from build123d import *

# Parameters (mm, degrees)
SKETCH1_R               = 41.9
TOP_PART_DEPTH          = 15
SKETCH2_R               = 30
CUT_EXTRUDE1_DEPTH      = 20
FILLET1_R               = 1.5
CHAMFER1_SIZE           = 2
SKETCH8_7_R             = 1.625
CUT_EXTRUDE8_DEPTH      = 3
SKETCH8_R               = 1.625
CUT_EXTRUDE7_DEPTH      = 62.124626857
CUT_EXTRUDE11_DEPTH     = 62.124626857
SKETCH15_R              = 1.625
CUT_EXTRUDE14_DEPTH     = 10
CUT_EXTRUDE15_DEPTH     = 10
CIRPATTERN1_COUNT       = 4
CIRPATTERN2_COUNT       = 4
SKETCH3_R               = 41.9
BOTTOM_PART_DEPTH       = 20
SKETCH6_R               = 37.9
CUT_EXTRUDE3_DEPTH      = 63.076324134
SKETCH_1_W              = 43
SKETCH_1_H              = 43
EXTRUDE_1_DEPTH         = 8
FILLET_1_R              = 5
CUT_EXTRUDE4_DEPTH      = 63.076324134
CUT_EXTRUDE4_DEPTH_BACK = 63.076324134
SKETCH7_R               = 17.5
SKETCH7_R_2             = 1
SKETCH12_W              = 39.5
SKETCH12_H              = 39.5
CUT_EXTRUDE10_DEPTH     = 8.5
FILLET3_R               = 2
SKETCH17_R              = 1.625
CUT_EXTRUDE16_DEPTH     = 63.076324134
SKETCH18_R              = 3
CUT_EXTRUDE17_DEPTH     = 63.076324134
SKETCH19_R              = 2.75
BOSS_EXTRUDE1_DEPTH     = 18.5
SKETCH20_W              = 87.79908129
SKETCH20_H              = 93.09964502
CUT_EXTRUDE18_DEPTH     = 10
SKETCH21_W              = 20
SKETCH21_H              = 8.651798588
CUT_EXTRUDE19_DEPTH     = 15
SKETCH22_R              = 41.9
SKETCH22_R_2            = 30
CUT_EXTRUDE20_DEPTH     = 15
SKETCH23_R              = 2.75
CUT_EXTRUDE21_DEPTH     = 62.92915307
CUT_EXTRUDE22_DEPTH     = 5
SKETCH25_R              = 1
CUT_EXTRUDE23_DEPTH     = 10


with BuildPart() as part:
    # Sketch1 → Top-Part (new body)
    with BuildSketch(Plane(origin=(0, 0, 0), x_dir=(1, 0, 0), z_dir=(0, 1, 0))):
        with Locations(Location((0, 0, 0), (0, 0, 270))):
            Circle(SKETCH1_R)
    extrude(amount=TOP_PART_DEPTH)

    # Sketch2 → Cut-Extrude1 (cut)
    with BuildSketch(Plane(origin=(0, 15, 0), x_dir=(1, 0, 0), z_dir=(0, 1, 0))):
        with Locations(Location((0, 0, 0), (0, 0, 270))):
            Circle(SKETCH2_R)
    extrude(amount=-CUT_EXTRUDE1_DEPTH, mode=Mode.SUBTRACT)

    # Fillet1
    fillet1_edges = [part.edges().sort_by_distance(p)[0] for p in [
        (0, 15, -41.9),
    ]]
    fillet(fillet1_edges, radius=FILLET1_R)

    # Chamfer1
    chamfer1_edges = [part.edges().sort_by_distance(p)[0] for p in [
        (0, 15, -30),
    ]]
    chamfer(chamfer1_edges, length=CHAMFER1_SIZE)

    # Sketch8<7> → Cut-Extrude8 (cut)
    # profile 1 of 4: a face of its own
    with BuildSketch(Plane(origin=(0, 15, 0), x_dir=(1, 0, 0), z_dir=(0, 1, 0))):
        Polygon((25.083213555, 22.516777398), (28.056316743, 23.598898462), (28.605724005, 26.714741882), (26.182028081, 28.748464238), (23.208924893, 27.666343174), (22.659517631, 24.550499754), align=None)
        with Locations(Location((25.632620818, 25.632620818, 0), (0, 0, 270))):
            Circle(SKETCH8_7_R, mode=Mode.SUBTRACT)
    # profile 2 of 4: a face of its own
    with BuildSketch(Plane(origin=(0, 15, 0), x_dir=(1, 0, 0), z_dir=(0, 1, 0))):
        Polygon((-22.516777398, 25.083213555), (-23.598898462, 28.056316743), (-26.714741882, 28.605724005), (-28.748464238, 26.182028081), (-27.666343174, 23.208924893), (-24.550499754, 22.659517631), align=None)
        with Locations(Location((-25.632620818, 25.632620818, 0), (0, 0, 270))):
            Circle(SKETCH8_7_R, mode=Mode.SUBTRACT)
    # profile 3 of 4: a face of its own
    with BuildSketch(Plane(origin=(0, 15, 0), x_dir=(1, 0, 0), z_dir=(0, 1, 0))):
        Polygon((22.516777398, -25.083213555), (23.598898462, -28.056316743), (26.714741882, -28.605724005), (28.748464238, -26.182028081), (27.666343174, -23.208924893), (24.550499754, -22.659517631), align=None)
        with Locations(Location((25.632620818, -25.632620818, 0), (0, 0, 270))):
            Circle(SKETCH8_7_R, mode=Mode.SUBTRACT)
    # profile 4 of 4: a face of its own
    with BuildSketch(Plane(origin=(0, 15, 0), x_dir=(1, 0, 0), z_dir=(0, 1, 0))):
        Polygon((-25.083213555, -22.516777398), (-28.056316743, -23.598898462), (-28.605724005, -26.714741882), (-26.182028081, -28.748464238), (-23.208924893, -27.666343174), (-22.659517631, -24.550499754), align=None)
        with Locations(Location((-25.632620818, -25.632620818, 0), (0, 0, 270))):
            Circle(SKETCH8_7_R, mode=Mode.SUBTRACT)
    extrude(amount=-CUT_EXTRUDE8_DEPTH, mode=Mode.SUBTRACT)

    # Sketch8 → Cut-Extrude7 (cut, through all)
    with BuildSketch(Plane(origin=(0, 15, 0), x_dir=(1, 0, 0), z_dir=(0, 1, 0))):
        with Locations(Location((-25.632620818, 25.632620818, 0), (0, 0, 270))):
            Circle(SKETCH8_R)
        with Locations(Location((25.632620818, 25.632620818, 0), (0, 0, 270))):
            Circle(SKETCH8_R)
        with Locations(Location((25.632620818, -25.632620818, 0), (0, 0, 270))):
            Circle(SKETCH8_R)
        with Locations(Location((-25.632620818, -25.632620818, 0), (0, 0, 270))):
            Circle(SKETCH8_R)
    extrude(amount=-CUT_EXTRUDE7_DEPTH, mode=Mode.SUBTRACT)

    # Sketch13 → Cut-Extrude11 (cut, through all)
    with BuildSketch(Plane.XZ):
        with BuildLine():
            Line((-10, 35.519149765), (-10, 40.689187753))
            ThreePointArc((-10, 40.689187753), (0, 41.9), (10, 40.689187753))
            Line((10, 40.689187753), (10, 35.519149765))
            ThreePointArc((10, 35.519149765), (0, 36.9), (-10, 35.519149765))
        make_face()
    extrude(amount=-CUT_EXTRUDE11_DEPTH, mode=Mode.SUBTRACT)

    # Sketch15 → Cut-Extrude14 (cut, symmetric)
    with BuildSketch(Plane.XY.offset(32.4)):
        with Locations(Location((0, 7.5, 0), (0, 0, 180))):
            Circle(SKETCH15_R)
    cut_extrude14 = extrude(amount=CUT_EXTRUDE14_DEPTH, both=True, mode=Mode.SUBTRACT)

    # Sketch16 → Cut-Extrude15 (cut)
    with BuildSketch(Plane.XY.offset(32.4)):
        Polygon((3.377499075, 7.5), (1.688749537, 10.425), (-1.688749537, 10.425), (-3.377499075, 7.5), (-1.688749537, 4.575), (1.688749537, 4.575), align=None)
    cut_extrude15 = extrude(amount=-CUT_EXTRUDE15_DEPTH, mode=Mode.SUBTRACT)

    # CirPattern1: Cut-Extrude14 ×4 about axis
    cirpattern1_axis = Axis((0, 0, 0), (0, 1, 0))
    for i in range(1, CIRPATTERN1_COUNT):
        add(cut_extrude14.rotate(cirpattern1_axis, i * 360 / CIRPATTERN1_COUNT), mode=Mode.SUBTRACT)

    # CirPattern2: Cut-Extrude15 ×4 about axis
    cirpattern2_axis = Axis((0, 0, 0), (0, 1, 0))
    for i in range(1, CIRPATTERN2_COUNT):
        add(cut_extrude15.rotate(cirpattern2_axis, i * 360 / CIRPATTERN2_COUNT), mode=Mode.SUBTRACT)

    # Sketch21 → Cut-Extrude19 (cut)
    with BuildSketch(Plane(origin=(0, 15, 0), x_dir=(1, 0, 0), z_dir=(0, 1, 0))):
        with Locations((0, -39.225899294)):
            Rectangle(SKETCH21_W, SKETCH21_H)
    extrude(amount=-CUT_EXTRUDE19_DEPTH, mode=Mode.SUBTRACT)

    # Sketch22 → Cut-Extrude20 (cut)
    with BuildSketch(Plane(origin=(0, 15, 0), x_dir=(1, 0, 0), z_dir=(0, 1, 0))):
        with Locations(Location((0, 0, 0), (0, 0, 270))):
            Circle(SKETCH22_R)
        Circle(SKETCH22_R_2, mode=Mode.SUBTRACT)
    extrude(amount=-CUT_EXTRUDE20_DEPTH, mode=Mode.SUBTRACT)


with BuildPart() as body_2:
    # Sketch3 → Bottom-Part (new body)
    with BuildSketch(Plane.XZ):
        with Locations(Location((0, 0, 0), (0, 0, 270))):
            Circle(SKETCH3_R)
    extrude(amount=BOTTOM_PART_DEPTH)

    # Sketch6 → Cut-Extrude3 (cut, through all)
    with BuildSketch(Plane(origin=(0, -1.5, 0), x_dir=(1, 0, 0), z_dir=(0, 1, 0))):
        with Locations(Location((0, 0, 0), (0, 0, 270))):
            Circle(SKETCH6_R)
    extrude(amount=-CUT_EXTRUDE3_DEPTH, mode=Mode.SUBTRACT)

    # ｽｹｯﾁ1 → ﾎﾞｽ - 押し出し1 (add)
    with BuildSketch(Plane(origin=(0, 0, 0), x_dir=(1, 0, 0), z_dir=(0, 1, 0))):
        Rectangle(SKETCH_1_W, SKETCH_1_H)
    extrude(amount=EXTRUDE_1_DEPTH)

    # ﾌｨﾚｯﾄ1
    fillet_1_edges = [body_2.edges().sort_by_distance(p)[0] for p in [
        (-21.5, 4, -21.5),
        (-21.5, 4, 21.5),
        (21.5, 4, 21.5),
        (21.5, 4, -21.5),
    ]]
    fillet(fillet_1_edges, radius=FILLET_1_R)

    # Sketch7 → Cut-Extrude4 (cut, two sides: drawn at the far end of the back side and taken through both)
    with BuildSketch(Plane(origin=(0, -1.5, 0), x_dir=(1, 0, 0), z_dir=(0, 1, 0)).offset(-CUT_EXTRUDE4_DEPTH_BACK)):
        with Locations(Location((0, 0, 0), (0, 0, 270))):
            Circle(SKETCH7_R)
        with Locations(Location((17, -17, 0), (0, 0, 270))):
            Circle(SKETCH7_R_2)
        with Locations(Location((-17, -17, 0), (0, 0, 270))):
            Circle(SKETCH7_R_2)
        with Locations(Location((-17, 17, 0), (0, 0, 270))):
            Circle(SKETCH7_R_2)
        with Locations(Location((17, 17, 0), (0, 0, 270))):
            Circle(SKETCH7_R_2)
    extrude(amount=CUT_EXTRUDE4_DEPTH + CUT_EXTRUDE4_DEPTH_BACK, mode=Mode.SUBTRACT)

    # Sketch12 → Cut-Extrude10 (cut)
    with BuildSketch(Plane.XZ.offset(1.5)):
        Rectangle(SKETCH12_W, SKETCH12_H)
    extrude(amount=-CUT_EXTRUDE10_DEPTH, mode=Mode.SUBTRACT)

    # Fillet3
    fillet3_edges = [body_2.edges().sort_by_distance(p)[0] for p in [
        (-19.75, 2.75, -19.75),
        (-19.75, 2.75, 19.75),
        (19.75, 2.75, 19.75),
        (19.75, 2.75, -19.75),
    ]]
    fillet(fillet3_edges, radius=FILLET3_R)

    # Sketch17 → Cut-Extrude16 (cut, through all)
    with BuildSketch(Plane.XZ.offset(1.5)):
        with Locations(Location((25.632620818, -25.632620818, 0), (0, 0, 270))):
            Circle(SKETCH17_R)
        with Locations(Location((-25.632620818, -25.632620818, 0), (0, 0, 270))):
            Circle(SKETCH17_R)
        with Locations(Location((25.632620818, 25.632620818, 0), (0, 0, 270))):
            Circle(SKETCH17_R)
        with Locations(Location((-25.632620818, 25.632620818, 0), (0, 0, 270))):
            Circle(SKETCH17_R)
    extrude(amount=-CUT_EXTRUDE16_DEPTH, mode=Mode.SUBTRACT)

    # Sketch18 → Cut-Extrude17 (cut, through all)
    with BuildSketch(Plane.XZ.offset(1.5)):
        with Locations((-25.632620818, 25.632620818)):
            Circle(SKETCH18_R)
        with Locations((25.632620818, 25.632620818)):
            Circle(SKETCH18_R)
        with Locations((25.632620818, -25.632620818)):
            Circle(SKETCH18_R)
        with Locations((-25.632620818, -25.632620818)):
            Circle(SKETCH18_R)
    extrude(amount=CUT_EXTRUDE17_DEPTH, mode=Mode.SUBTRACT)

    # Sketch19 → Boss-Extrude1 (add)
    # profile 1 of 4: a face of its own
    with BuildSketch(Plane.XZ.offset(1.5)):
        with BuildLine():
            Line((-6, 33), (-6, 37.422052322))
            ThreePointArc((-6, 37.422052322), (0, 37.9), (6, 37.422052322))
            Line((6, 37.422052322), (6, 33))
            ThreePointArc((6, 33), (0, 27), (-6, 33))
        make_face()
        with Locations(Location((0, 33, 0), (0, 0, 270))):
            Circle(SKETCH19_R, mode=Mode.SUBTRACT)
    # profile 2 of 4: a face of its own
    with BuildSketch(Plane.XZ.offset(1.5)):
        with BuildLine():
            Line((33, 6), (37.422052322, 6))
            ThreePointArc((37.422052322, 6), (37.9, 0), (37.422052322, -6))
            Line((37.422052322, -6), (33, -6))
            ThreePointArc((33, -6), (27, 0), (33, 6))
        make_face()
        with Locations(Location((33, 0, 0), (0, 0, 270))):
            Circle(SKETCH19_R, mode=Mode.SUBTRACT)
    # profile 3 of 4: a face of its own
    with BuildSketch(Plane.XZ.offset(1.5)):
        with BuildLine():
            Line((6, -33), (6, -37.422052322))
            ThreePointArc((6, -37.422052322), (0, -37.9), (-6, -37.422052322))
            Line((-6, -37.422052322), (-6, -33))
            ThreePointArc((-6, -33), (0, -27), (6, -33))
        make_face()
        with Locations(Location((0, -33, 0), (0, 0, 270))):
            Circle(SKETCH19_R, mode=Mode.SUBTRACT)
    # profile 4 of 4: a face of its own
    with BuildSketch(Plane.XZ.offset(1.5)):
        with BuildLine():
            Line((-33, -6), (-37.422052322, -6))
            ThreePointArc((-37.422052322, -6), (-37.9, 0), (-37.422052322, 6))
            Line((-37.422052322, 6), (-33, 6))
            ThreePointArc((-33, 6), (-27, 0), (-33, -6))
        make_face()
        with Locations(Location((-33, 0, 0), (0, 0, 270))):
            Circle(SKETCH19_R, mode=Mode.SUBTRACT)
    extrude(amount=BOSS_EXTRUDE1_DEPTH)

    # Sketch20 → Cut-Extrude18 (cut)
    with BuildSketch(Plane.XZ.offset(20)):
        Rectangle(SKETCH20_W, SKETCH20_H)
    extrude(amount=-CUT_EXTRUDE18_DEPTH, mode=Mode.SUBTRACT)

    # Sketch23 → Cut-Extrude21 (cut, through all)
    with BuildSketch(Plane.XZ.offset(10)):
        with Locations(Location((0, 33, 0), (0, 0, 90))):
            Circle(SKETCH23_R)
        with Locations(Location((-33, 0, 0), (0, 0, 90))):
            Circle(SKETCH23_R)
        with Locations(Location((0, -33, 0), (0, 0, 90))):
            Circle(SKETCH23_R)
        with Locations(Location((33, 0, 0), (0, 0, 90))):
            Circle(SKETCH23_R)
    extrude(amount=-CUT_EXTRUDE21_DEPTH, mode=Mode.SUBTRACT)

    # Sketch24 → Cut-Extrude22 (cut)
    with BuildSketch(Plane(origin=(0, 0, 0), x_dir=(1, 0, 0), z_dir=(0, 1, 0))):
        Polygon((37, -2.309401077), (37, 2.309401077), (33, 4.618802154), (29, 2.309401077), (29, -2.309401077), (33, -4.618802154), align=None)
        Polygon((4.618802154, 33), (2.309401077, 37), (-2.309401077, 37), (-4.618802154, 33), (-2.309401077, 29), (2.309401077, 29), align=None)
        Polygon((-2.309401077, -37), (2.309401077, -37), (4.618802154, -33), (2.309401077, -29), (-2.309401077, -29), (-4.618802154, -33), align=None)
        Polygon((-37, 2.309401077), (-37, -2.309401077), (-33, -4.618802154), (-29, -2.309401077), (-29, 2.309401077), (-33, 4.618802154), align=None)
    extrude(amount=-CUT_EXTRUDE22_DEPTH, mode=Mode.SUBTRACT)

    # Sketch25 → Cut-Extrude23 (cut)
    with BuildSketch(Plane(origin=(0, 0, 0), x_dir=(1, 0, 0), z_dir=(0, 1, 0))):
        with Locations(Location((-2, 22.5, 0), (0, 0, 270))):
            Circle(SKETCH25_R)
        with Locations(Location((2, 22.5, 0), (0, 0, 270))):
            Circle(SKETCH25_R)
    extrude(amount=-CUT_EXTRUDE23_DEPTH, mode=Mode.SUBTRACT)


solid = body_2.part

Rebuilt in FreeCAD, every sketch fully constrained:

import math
import FreeCAD as App
import Part
import Sketcher
from FreeCAD import Vector
Q = App.Units.Quantity


def edges_at(feature, points):
    """Names of the edges that pass closest to the given points."""
    edges = feature.Shape.Edges
    near = lambda p: min(range(len(edges)), key=lambda i: edges[i].distToShape(Part.Vertex(*p))[0])
    return sorted({f"Edge{near(p) + 1}" for p in points})


def add_polygon(sketch, points):
    """Adds a closed chain of lines whose ends are joined by coincident constraints."""
    first, n = sketch.GeometryCount, len(points)
    for a, b in zip(points, points[1:] + points[:1]):
        sketch.addGeometry(Part.LineSegment(App.Vector(*a, 0), App.Vector(*b, 0)), False)
    for i in range(n):
        sketch.addConstraint(Sketcher.Constraint("Coincident", first + i, 2, first + (i + 1) % n, 1))

doc = App.newDocument("Part")
body = doc.addObject("PartDesign::Body", "Body")

# Sketch on XZ plane
sketch1 = body.newObject("Sketcher::SketchObject", "Sketch")
sketch1.AttachmentSupport = (doc.getObject("XZ_Plane"), [""])
sketch1.MapMode = "FlatFace"
sketch1.addGeometry(Part.Circle(Vector(0, 0, 0), Vector(0, 0, 1), 41.9), False)
sketch1.addConstraint(Sketcher.Constraint("Coincident", 0, 3, -1, 1))
sketch1.addConstraint(Sketcher.Constraint("Diameter", 0, 83.8))
pad1 = body.newObject("PartDesign::Pad", "Pad")
pad1.Profile = sketch1
pad1.Length = 15
pad1.Reversed = True

# Sketch on XZ plane
sketch2 = body.newObject("Sketcher::SketchObject", "Sketch001")
sketch2.AttachmentSupport = (doc.getObject("XZ_Plane"), [""])
sketch2.MapMode = "FlatFace"
sketch2.AttachmentOffset = App.Placement(Vector(0, 0, -15), App.Rotation())
sketch2.addGeometry(Part.Circle(Vector(0, 0, 0), Vector(0, 0, 1), 30), False)
sketch2.addConstraint(Sketcher.Constraint("Coincident", 0, 3, -1, 1))
sketch2.addConstraint(Sketcher.Constraint("Diameter", 0, 60.0))
pocket1 = body.newObject("PartDesign::Pocket", "Pocket")
pocket1.Profile = sketch2
pocket1.Length = 20
pocket1.Reversed = True
doc.recompute()

fillet = body.newObject("PartDesign::Fillet", "Fillet")
fillet.Base = (pocket1, edges_at(pocket1, [(0, 15, -41.9)]))
fillet.Radius = 1.5
doc.recompute()

chamfer = body.newObject("PartDesign::Chamfer", "Chamfer")
chamfer.Base = (fillet, edges_at(fillet, [(0, 15, -30)]))
chamfer.Size = 2

# Sketch on XZ plane
sketch3 = body.newObject("Sketcher::SketchObject", "Sketch002")
sketch3.AttachmentSupport = (doc.getObject("XZ_Plane"), [""])
sketch3.MapMode = "FlatFace"
sketch3.AttachmentOffset = App.Placement(Vector(0, 0, -15), App.Rotation())
add_polygon(sketch3, [(25.083214, -22.516777), (28.056317, -23.598898), (28.605724, -26.714742), (26.182028, -28.748464), (23.208925, -27.666343), (22.659518, -24.5505)])  # lines 0-5
sketch3.addGeometry(Part.Circle(Vector(25.632621, -25.632621, 0), Vector(0, 0, 1), 1.625), False)  # 6
add_polygon(sketch3, [(-22.516777, -25.083214), (-23.598898, -28.056317), (-26.714742, -28.605724), (-28.748464, -26.182028), (-27.666343, -23.208925), (-24.5505, -22.659518)])  # lines 7-12
sketch3.addGeometry(Part.Circle(Vector(-25.632621, -25.632621, 0), Vector(0, 0, 1), 1.625), False)  # 13
add_polygon(sketch3, [(22.516777, 25.083214), (23.598898, 28.056317), (26.714742, 28.605724), (28.748464, 26.182028), (27.666343, 23.208925), (24.5505, 22.659518)])  # lines 14-19
sketch3.addGeometry(Part.Circle(Vector(25.632621, 25.632621, 0), Vector(0, 0, 1), 1.625), False)  # 20
add_polygon(sketch3, [(-25.083214, 22.516777), (-28.056317, 23.598898), (-28.605724, 26.714742), (-26.182028, 28.748464), (-23.208925, 27.666343), (-22.659518, 24.5505)])  # lines 21-26
sketch3.addGeometry(Part.Circle(Vector(-25.632621, 25.632621, 0), Vector(0, 0, 1), 1.625), False)  # 27
sketch3.addConstraint(Sketcher.Constraint("Equal", 6, 13))
sketch3.addConstraint(Sketcher.Constraint("Equal", 13, 20))
sketch3.addConstraint(Sketcher.Constraint("Equal", 20, 27))
sketch3.addConstraint(Sketcher.Constraint("Symmetric", 13, 3, 20, 3, -1, 1))
sketch3.addConstraint(Sketcher.Constraint("Symmetric", 6, 3, 27, 3, -1, 1))
sketch3.addConstraint(Sketcher.Constraint("Symmetric", 7, 2, 14, 2, -1, 1))
sketch3.addConstraint(Sketcher.Constraint("Symmetric", 8, 2, 15, 2, -1, 1))
sketch3.addConstraint(Sketcher.Constraint("Symmetric", 9, 2, 16, 2, -1, 1))
sketch3.addConstraint(Sketcher.Constraint("Symmetric", 10, 2, 17, 2, -1, 1))
sketch3.addConstraint(Sketcher.Constraint("Symmetric", 11, 2, 18, 2, -1, 1))
sketch3.addConstraint(Sketcher.Constraint("Symmetric", 12, 2, 19, 2, -1, 1))
sketch3.addConstraint(Sketcher.Constraint("Symmetric", 0, 2, 21, 2, -1, 1))
sketch3.addConstraint(Sketcher.Constraint("Symmetric", 1, 2, 22, 2, -1, 1))
sketch3.addConstraint(Sketcher.Constraint("Symmetric", 2, 2, 23, 2, -1, 1))
sketch3.addConstraint(Sketcher.Constraint("Symmetric", 3, 2, 24, 2, -1, 1))
sketch3.addConstraint(Sketcher.Constraint("Symmetric", 4, 2, 25, 2, -1, 1))
sketch3.addConstraint(Sketcher.Constraint("Symmetric", 5, 2, 26, 2, -1, 1))
sketch3.addConstraint(Sketcher.Constraint("Symmetric", 6, 3, 13, 3, -2))
sketch3.addConstraint(Sketcher.Constraint("Parallel", 0, 3))
sketch3.addConstraint(Sketcher.Constraint("Parallel", 1, 4))
sketch3.addConstraint(Sketcher.Constraint("Parallel", 2, 5))
sketch3.addConstraint(Sketcher.Constraint("Perpendicular", 3, 7))
sketch3.addConstraint(Sketcher.Constraint("Perpendicular", 4, 8))
sketch3.addConstraint(Sketcher.Constraint("Perpendicular", 5, 9))
sketch3.addConstraint(Sketcher.Constraint("Parallel", 7, 10))
sketch3.addConstraint(Sketcher.Constraint("Parallel", 8, 11))
sketch3.addConstraint(Sketcher.Constraint("Parallel", 9, 12))
sketch3.addConstraint(Sketcher.Constraint("Equal", 0, 1))
sketch3.addConstraint(Sketcher.Constraint("Equal", 1, 2))
sketch3.addConstraint(Sketcher.Constraint("Equal", 2, 3))
sketch3.addConstraint(Sketcher.Constraint("Equal", 5, 7))
sketch3.addConstraint(Sketcher.Constraint("Equal", 7, 8))
sketch3.addConstraint(Sketcher.Constraint("Equal", 8, 9))
sketch3.addConstraint(Sketcher.Constraint("Equal", 9, 10))
sketch3.addConstraint(Sketcher.Constraint("Diameter", 6, 3.25))
sketch3.addConstraint(Sketcher.Constraint("Angle", 0, Q("-20 deg")))
sketch3.addConstraint(Sketcher.Constraint("Angle", 1, Q("-80 deg")))
sketch3.addConstraint(Sketcher.Constraint("Angle", 2, Q("-140 deg")))
sketch3.addConstraint(Sketcher.Constraint("DistanceY", 0, 2, -1, 1, 23.598898))
sketch3.addConstraint(Sketcher.Constraint("DistanceY", 4, 2, -1, 1, 24.5505))
sketch3.addConstraint(Sketcher.Constraint("DistanceX", 7, 2, -1, 1, 23.598898))
sketch3.addConstraint(Sketcher.Constraint("DistanceY", 5, 2, 15, 2, 51.122501))
sketch3.addConstraint(Sketcher.Constraint("DistanceX", 22, 2, 19, 2, 51.122501))
sketch3.addConstraint(Sketcher.Constraint("DistanceX", -1, 1, 6, 3, 25.632621))
sketch3.addConstraint(Sketcher.Constraint("DistanceY", 6, 3, -1, 1, 25.632621))
pocket2 = body.newObject("PartDesign::Pocket", "Pocket001")
pocket2.Profile = sketch3
pocket2.Length = 3
pocket2.Reversed = True

# Sketch on XZ plane
sketch4 = body.newObject("Sketcher::SketchObject", "Sketch003")
sketch4.AttachmentSupport = (doc.getObject("XZ_Plane"), [""])
sketch4.MapMode = "FlatFace"
sketch4.AttachmentOffset = App.Placement(Vector(0, 0, -15), App.Rotation())
sketch4.addGeometry(Part.Circle(Vector(-25.632621, -25.632621, 0), Vector(0, 0, 1), 1.625), False)
sketch4.addGeometry(Part.Circle(Vector(25.632621, -25.632621, 0), Vector(0, 0, 1), 1.625), False)
sketch4.addGeometry(Part.Circle(Vector(25.632621, 25.632621, 0), Vector(0, 0, 1), 1.625), False)
sketch4.addGeometry(Part.Circle(Vector(-25.632621, 25.632621, 0), Vector(0, 0, 1), 1.625), False)
sketch4.addConstraint(Sketcher.Constraint("Equal", 0, 1))
sketch4.addConstraint(Sketcher.Constraint("Equal", 1, 2))
sketch4.addConstraint(Sketcher.Constraint("Equal", 2, 3))
sketch4.addConstraint(Sketcher.Constraint("Symmetric", 0, 3, 2, 3, -1, 1))
sketch4.addConstraint(Sketcher.Constraint("Symmetric", 1, 3, 3, 3, -1, 1))
sketch4.addConstraint(Sketcher.Constraint("Symmetric", 0, 3, 1, 3, -2))
sketch4.addConstraint(Sketcher.Constraint("Diameter", 0, 3.25))
sketch4.addConstraint(Sketcher.Constraint("DistanceX", 0, 3, -1, 1, 25.632621))
sketch4.addConstraint(Sketcher.Constraint("DistanceY", 0, 3, -1, 1, 25.632621))
pocket3 = body.newObject("PartDesign::Pocket", "Pocket002")
pocket3.Profile = sketch4
pocket3.Type = "ThroughAll"
pocket3.Reversed = True

# Sketch on XZ plane
sketch5 = body.newObject("Sketcher::SketchObject", "Sketch004")
sketch5.AttachmentSupport = (doc.getObject("XZ_Plane"), [""])
sketch5.MapMode = "FlatFace"
sketch5.addGeometry(Part.LineSegment(Vector(-10, 40.689188, 0), Vector(-10, 35.51915, 0)), False)
sketch5.addGeometry(Part.ArcOfCircle(Part.Circle(Vector(0, 0, 0), Vector(0, 0, 1), 36.9), math.radians(74.276057), math.radians(105.723943)), False)
sketch5.addGeometry(Part.LineSegment(Vector(10, 35.51915, 0), Vector(10, 40.689188, 0)), False)
sketch5.addGeometry(Part.ArcOfCircle(Part.Circle(Vector(0, 0, 0), Vector(0, 0, 1), 41.9), math.radians(76.192328), math.radians(103.807672)), False)
sketch5.addConstraint(Sketcher.Constraint("Coincident", 0, 2, 1, 2))
sketch5.addConstraint(Sketcher.Constraint("Coincident", 1, 1, 2, 1))
sketch5.addConstraint(Sketcher.Constraint("Coincident", 2, 2, 3, 1))
sketch5.addConstraint(Sketcher.Constraint("Coincident", 3, 2, 0, 1))
sketch5.addConstraint(Sketcher.Constraint("Vertical", 0))
sketch5.addConstraint(Sketcher.Constraint("Vertical", 2))
sketch5.addConstraint(Sketcher.Constraint("Coincident", 1, 3, -1, 1))
sketch5.addConstraint(Sketcher.Constraint("Coincident", 3, 3, -1, 1))
sketch5.addConstraint(Sketcher.Constraint("Horizontal", 0, 2, 1, 1))
sketch5.addConstraint(Sketcher.Constraint("Radius", 1, 36.9))
sketch5.addConstraint(Sketcher.Constraint("Radius", 3, 41.9))
sketch5.addConstraint(Sketcher.Constraint("DistanceX", 0, 2, -1, 1, 10.0))
pocket4 = body.newObject("PartDesign::Pocket", "Pocket003")
pocket4.Profile = sketch5
pocket4.Type = "ThroughAll"

# Sketch on XY plane
sketch6 = body.newObject("Sketcher::SketchObject", "Sketch005")
sketch6.AttachmentSupport = (doc.getObject("XY_Plane"), [""])
sketch6.MapMode = "FlatFace"
sketch6.AttachmentOffset = App.Placement(Vector(0, 0, 32.4), App.Rotation())
sketch6.addGeometry(Part.Circle(Vector(0, 7.5, 0), Vector(0, 0, 1), 1.625), False)
sketch6.addConstraint(Sketcher.Constraint("PointOnObject", 0, 3, -2))
sketch6.addConstraint(Sketcher.Constraint("Diameter", 0, 3.25))
sketch6.addConstraint(Sketcher.Constraint("DistanceY", -1, 1, 0, 3, 7.5))
pocket5 = body.newObject("PartDesign::Pocket", "Pocket004")
pocket5.Profile = sketch6
pocket5.Length = 20
pocket5.Midplane = True

# Sketch on XY plane
sketch7 = body.newObject("Sketcher::SketchObject", "Sketch006")
sketch7.AttachmentSupport = (doc.getObject("XY_Plane"), [""])
sketch7.MapMode = "FlatFace"
sketch7.AttachmentOffset = App.Placement(Vector(0, 0, 32.4), App.Rotation())
add_polygon(sketch7, [(3.377499, 7.5), (1.68875, 10.425), (-1.68875, 10.425), (-3.377499, 7.5), (-1.68875, 4.575), (1.68875, 4.575)])  # lines 0-5
sketch7.addConstraint(Sketcher.Constraint("Horizontal", 1))
sketch7.addConstraint(Sketcher.Constraint("Horizontal", 4))
sketch7.addConstraint(Sketcher.Constraint("Symmetric", 2, 2, 5, 2, -2))
sketch7.addConstraint(Sketcher.Constraint("Parallel", 0, 3))
sketch7.addConstraint(Sketcher.Constraint("Parallel", 2, 5))
sketch7.addConstraint(Sketcher.Constraint("Vertical", 1, 2, 3, 2))
sketch7.addConstraint(Sketcher.Constraint("Vertical", 0, 2, 4, 2))
sketch7.addConstraint(Sketcher.Constraint("Angle", 0, Q("120 deg")))
sketch7.addConstraint(Sketcher.Constraint("DistanceY", -1, 1, 2, 2, 7.5))
sketch7.addConstraint(Sketcher.Constraint("DistanceY", 3, 2, 1, 2, 5.85))
sketch7.addConstraint(Sketcher.Constraint("DistanceX", 1, 2, 1, 1, 3.377499))
pocket6 = body.newObject("PartDesign::Pocket", "Pocket005")
pocket6.Profile = sketch7
pocket6.Length = 10
doc.recompute()

polarpattern = body.newObject("PartDesign::PolarPattern", "PolarPattern")
polarpattern.Originals = [pocket5]
polarpattern.Axis = (doc.getObject("Y_Axis"), [""])
polarpattern.Angle = 360
polarpattern.Occurrences = 4
body.Tip = polarpattern
doc.recompute()

polarpattern2 = body.newObject("PartDesign::PolarPattern", "PolarPattern001")
polarpattern2.Originals = [pocket6]
polarpattern2.Axis = (doc.getObject("Y_Axis"), [""])
polarpattern2.Angle = 360
polarpattern2.Occurrences = 4
body.Tip = polarpattern2

# Sketch on XZ plane
sketch8 = body.newObject("Sketcher::SketchObject", "Sketch007")
sketch8.AttachmentSupport = (doc.getObject("XZ_Plane"), [""])
sketch8.MapMode = "FlatFace"
sketch8.AttachmentOffset = App.Placement(Vector(0, 0, -15), App.Rotation())
add_polygon(sketch8, [(-10, 34.9), (-10, 43.551799), (10, 43.551799), (10, 34.9)])  # lines 0-3
sketch8.addConstraint(Sketcher.Constraint("Vertical", 0))
sketch8.addConstraint(Sketcher.Constraint("Horizontal", 1))
sketch8.addConstraint(Sketcher.Constraint("Vertical", 2))
sketch8.addConstraint(Sketcher.Constraint("Horizontal", 3))
sketch8.addConstraint(Sketcher.Constraint("DistanceX", 1, 1, 1, 2, 20.0))
sketch8.addConstraint(Sketcher.Constraint("DistanceX", 0, 2, -1, 1, 10.0))
sketch8.addConstraint(Sketcher.Constraint("DistanceY", -1, 1, 2, 2, 34.9))
sketch8.addConstraint(Sketcher.Constraint("DistanceY", 0, 1, 0, 2, 8.651799))
pocket7 = body.newObject("PartDesign::Pocket", "Pocket006")
pocket7.Profile = sketch8
pocket7.Length = 15
pocket7.Reversed = True

# Sketch on XZ plane
sketch9 = body.newObject("Sketcher::SketchObject", "Sketch008")
sketch9.AttachmentSupport = (doc.getObject("XZ_Plane"), [""])
sketch9.MapMode = "FlatFace"
sketch9.AttachmentOffset = App.Placement(Vector(0, 0, -15), App.Rotation())
sketch9.addGeometry(Part.Circle(Vector(0, 0, 0), Vector(0, 0, 1), 41.9), False)
sketch9.addGeometry(Part.Circle(Vector(0, 0, 0), Vector(0, 0, 1), 30), False)
sketch9.addConstraint(Sketcher.Constraint("Coincident", 0, 3, -1, 1))
sketch9.addConstraint(Sketcher.Constraint("Coincident", 1, 3, -1, 1))
sketch9.addConstraint(Sketcher.Constraint("Diameter", 1, 60.0))
sketch9.addConstraint(Sketcher.Constraint("Diameter", 0, 83.8))
pocket8 = body.newObject("PartDesign::Pocket", "Pocket007")
pocket8.Profile = sketch9
pocket8.Length = 15
pocket8.Reversed = True
body2 = doc.addObject("PartDesign::Body", "Body001")

# Sketch on XZ plane
sketch10 = body2.newObject("Sketcher::SketchObject", "Sketch009")
sketch10.AttachmentSupport = (doc.getObject("XZ_Plane001"), [""])
sketch10.MapMode = "FlatFace"
sketch10.addGeometry(Part.Circle(Vector(0, 0, 0), Vector(0, 0, 1), 41.9), False)
sketch10.addConstraint(Sketcher.Constraint("Coincident", 0, 3, -1, 1))
sketch10.addConstraint(Sketcher.Constraint("Diameter", 0, 83.8))
pad2 = body2.newObject("PartDesign::Pad", "Pad001")
pad2.Profile = sketch10
pad2.Length = 20

# Sketch on XZ plane
sketch11 = body2.newObject("Sketcher::SketchObject", "Sketch010")
sketch11.AttachmentSupport = (doc.getObject("XZ_Plane001"), [""])
sketch11.MapMode = "FlatFace"
sketch11.AttachmentOffset = App.Placement(Vector(0, 0, 1.5), App.Rotation())
sketch11.addGeometry(Part.Circle(Vector(0, 0, 0), Vector(0, 0, 1), 37.9), False)
sketch11.addConstraint(Sketcher.Constraint("Coincident", 0, 3, -1, 1))
sketch11.addConstraint(Sketcher.Constraint("Diameter", 0, 75.8))
pocket9 = body2.newObject("PartDesign::Pocket", "Pocket008")
pocket9.Profile = sketch11
pocket9.Type = "ThroughAll"
pocket9.Reversed = True

# Sketch on XZ plane
sketch12 = body2.newObject("Sketcher::SketchObject", "Sketch011")
sketch12.AttachmentSupport = (doc.getObject("XZ_Plane001"), [""])
sketch12.MapMode = "FlatFace"
add_polygon(sketch12, [(-21.5, -21.5), (-21.5, 21.5), (21.5, 21.5), (21.5, -21.5)])  # lines 0-3
sketch12.addConstraint(Sketcher.Constraint("Vertical", 0))
sketch12.addConstraint(Sketcher.Constraint("Horizontal", 1))
sketch12.addConstraint(Sketcher.Constraint("Vertical", 2))
sketch12.addConstraint(Sketcher.Constraint("Horizontal", 3))
sketch12.addConstraint(Sketcher.Constraint("Symmetric", 0, 2, 2, 2, -1, 1))
sketch12.addConstraint(Sketcher.Constraint("Equal", 3, 0))
sketch12.addConstraint(Sketcher.Constraint("DistanceX", 1, 1, 1, 2, 43.0))
pad3 = body2.newObject("PartDesign::Pad", "Pad002")
pad3.Profile = sketch12
pad3.Length = 8
pad3.Reversed = True
doc.recompute()

fillet2 = body2.newObject("PartDesign::Fillet", "Fillet001")
fillet2.Base = (pad3, edges_at(pad3, [
    (-21.5, 4, -21.5),
    (-21.5, 4, 21.5),
    (21.5, 4, 21.5),
    (21.5, 4, -21.5),
]))
fillet2.Radius = 5

# Sketch on XZ plane
sketch13 = body2.newObject("Sketcher::SketchObject", "Sketch012")
sketch13.AttachmentSupport = (doc.getObject("XZ_Plane001"), [""])
sketch13.MapMode = "FlatFace"
sketch13.AttachmentOffset = App.Placement(Vector(0, 0, 1.5), App.Rotation())
sketch13.addGeometry(Part.Circle(Vector(0, 0, 0), Vector(0, 0, 1), 17.5), False)
sketch13.addGeometry(Part.Circle(Vector(17, 17, 0), Vector(0, 0, 1), 1), False)
sketch13.addGeometry(Part.Circle(Vector(-17, 17, 0), Vector(0, 0, 1), 1), False)
sketch13.addGeometry(Part.Circle(Vector(-17, -17, 0), Vector(0, 0, 1), 1), False)
sketch13.addGeometry(Part.Circle(Vector(17, -17, 0), Vector(0, 0, 1), 1), False)
sketch13.addConstraint(Sketcher.Constraint("Coincident", 0, 3, -1, 1))
sketch13.addConstraint(Sketcher.Constraint("Equal", 1, 2))
sketch13.addConstraint(Sketcher.Constraint("Equal", 2, 3))
sketch13.addConstraint(Sketcher.Constraint("Equal", 3, 4))
sketch13.addConstraint(Sketcher.Constraint("Symmetric", 1, 3, 3, 3, -1, 1))
sketch13.addConstraint(Sketcher.Constraint("Symmetric", 2, 3, 4, 3, -1, 1))
sketch13.addConstraint(Sketcher.Constraint("Symmetric", 1, 3, 2, 3, -2))
sketch13.addConstraint(Sketcher.Constraint("Diameter", 0, 35.0))
sketch13.addConstraint(Sketcher.Constraint("Diameter", 1, 2.0))
sketch13.addConstraint(Sketcher.Constraint("DistanceX", -1, 1, 1, 3, 17.0))
sketch13.addConstraint(Sketcher.Constraint("DistanceY", -1, 1, 1, 3, 17.0))
pocket10 = body2.newObject("PartDesign::Pocket", "Pocket009")
pocket10.Profile = sketch13
pocket10.Type = "ThroughAll"
pocket10.Midplane = True

# Sketch on XZ plane
sketch14 = body2.newObject("Sketcher::SketchObject", "Sketch013")
sketch14.AttachmentSupport = (doc.getObject("XZ_Plane001"), [""])
sketch14.MapMode = "FlatFace"
sketch14.AttachmentOffset = App.Placement(Vector(0, 0, 1.5), App.Rotation())
add_polygon(sketch14, [(-19.75, 19.75), (-19.75, -19.75), (19.75, -19.75), (19.75, 19.75)])  # lines 0-3
sketch14.addConstraint(Sketcher.Constraint("Vertical", 0))
sketch14.addConstraint(Sketcher.Constraint("Horizontal", 1))
sketch14.addConstraint(Sketcher.Constraint("Vertical", 2))
sketch14.addConstraint(Sketcher.Constraint("Horizontal", 3))
sketch14.addConstraint(Sketcher.Constraint("Symmetric", 0, 2, 2, 2, -1, 1))
sketch14.addConstraint(Sketcher.Constraint("Equal", 3, 0))
sketch14.addConstraint(Sketcher.Constraint("DistanceX", 1, 1, 1, 2, 39.5))
pocket11 = body2.newObject("PartDesign::Pocket", "Pocket010")
pocket11.Profile = sketch14
pocket11.Length = 8.5
doc.recompute()

fillet3 = body2.newObject("PartDesign::Fillet", "Fillet002")
fillet3.Base = (pocket11, edges_at(pocket11, [
    (-19.75, 2.75, -19.75),
    (-19.75, 2.75, 19.75),
    (19.75, 2.75, 19.75),
    (19.75, 2.75, -19.75),
]))
fillet3.Radius = 2

# Sketch on XZ plane
sketch15 = body2.newObject("Sketcher::SketchObject", "Sketch014")
sketch15.AttachmentSupport = (doc.getObject("XZ_Plane001"), [""])
sketch15.MapMode = "FlatFace"
sketch15.AttachmentOffset = App.Placement(Vector(0, 0, 1.5), App.Rotation())
sketch15.addGeometry(Part.Circle(Vector(25.632621, -25.632621, 0), Vector(0, 0, 1), 1.625), False)
sketch15.addGeometry(Part.Circle(Vector(-25.632621, -25.632621, 0), Vector(0, 0, 1), 1.625), False)
sketch15.addGeometry(Part.Circle(Vector(25.632621, 25.632621, 0), Vector(0, 0, 1), 1.625), False)
sketch15.addGeometry(Part.Circle(Vector(-25.632621, 25.632621, 0), Vector(0, 0, 1), 1.625), False)
sketch15.addConstraint(Sketcher.Constraint("Equal", 0, 1))
sketch15.addConstraint(Sketcher.Constraint("Equal", 1, 2))
sketch15.addConstraint(Sketcher.Constraint("Equal", 2, 3))
sketch15.addConstraint(Sketcher.Constraint("Symmetric", 1, 3, 2, 3, -1, 1))
sketch15.addConstraint(Sketcher.Constraint("Symmetric", 0, 3, 3, 3, -1, 1))
sketch15.addConstraint(Sketcher.Constraint("Symmetric", 0, 3, 1, 3, -2))
sketch15.addConstraint(Sketcher.Constraint("Diameter", 0, 3.25))
sketch15.addConstraint(Sketcher.Constraint("DistanceX", -1, 1, 0, 3, 25.632621))
sketch15.addConstraint(Sketcher.Constraint("DistanceY", 0, 3, -1, 1, 25.632621))
pocket12 = body2.newObject("PartDesign::Pocket", "Pocket011")
pocket12.Profile = sketch15
pocket12.Type = "ThroughAll"

# Sketch on XZ plane
sketch16 = body2.newObject("Sketcher::SketchObject", "Sketch015")
sketch16.AttachmentSupport = (doc.getObject("XZ_Plane001"), [""])
sketch16.MapMode = "FlatFace"
sketch16.AttachmentOffset = App.Placement(Vector(0, 0, 1.5), App.Rotation())
sketch16.addGeometry(Part.Circle(Vector(-25.632621, 25.632621, 0), Vector(0, 0, 1), 3), False)
sketch16.addGeometry(Part.Circle(Vector(25.632621, 25.632621, 0), Vector(0, 0, 1), 3), False)
sketch16.addGeometry(Part.Circle(Vector(25.632621, -25.632621, 0), Vector(0, 0, 1), 3), False)
sketch16.addGeometry(Part.Circle(Vector(-25.632621, -25.632621, 0), Vector(0, 0, 1), 3), False)
sketch16.addConstraint(Sketcher.Constraint("Equal", 0, 1))
sketch16.addConstraint(Sketcher.Constraint("Equal", 1, 2))
sketch16.addConstraint(Sketcher.Constraint("Equal", 2, 3))
sketch16.addConstraint(Sketcher.Constraint("Symmetric", 0, 3, 2, 3, -1, 1))
sketch16.addConstraint(Sketcher.Constraint("Symmetric", 1, 3, 3, 3, -1, 1))
sketch16.addConstraint(Sketcher.Constraint("Symmetric", 0, 3, 1, 3, -2))
sketch16.addConstraint(Sketcher.Constraint("Diameter", 0, 6.0))
sketch16.addConstraint(Sketcher.Constraint("DistanceX", 0, 3, -1, 1, 25.632621))
sketch16.addConstraint(Sketcher.Constraint("DistanceY", -1, 1, 0, 3, 25.632621))
pocket13 = body2.newObject("PartDesign::Pocket", "Pocket012")
pocket13.Profile = sketch16
pocket13.Type = "ThroughAll"
pocket13.Reversed = True

# Sketch on XZ plane
sketch17 = body2.newObject("Sketcher::SketchObject", "Sketch016")
sketch17.AttachmentSupport = (doc.getObject("XZ_Plane001"), [""])
sketch17.MapMode = "FlatFace"
sketch17.AttachmentOffset = App.Placement(Vector(0, 0, 1.5), App.Rotation())
sketch17.addGeometry(Part.LineSegment(Vector(-6, 37.422052, 0), Vector(-6, 33, 0)), False)
sketch17.addGeometry(Part.ArcOfCircle(Part.Circle(Vector(0, 33, 0), Vector(0, 0, 1), 6), math.radians(180), math.radians(360)), False)
sketch17.addGeometry(Part.LineSegment(Vector(6, 33, 0), Vector(6, 37.422052, 0)), False)
sketch17.addGeometry(Part.ArcOfCircle(Part.Circle(Vector(0, 0, 0), Vector(0, 0, 1), 37.9), math.radians(80.891106), math.radians(99.108894)), False)
sketch17.addGeometry(Part.Circle(Vector(0, 33, 0), Vector(0, 0, 1), 2.75), False)
sketch17.addGeometry(Part.LineSegment(Vector(37.422052, 6, 0), Vector(33, 6, 0)), False)
sketch17.addGeometry(Part.ArcOfCircle(Part.Circle(Vector(33, 0, 0), Vector(0, 0, 1), 6), math.radians(90), math.radians(270)), False)
sketch17.addGeometry(Part.LineSegment(Vector(33, -6, 0), Vector(37.422052, -6, 0)), False)
sketch17.addGeometry(Part.ArcOfCircle(Part.Circle(Vector(0, 0, 0), Vector(0, 0, 1), 37.9), math.radians(-9.108894), math.radians(9.108894)), False)
sketch17.addGeometry(Part.Circle(Vector(33, 0, 0), Vector(0, 0, 1), 2.75), False)
sketch17.addGeometry(Part.LineSegment(Vector(6, -37.422052, 0), Vector(6, -33, 0)), False)
sketch17.addGeometry(Part.ArcOfCircle(Part.Circle(Vector(0, -33, 0), Vector(0, 0, 1), 6), math.radians(0), math.radians(180)), False)
sketch17.addGeometry(Part.LineSegment(Vector(-6, -33, 0), Vector(-6, -37.422052, 0)), False)
sketch17.addGeometry(Part.ArcOfCircle(Part.Circle(Vector(0, 0, 0), Vector(0, 0, 1), 37.9), math.radians(-99.108894), math.radians(-80.891106)), False)
sketch17.addGeometry(Part.Circle(Vector(0, -33, 0), Vector(0, 0, 1), 2.75), False)
sketch17.addGeometry(Part.LineSegment(Vector(-37.422052, -6, 0), Vector(-33, -6, 0)), False)
sketch17.addGeometry(Part.ArcOfCircle(Part.Circle(Vector(-33, 0, 0), Vector(0, 0, 1), 6), math.radians(-90), math.radians(90)), False)
sketch17.addGeometry(Part.LineSegment(Vector(-33, 6, 0), Vector(-37.422052, 6, 0)), False)
sketch17.addGeometry(Part.ArcOfCircle(Part.Circle(Vector(0, 0, 0), Vector(0, 0, 1), 37.9), math.radians(170.891106), math.radians(189.108894)), False)
sketch17.addGeometry(Part.Circle(Vector(-33, 0, 0), Vector(0, 0, 1), 2.75), False)
sketch17.addConstraint(Sketcher.Constraint("Tangent", 0, 2, 1, 1))
sketch17.addConstraint(Sketcher.Constraint("Tangent", 1, 2, 2, 1))
sketch17.addConstraint(Sketcher.Constraint("Coincident", 2, 2, 3, 1))
sketch17.addConstraint(Sketcher.Constraint("Coincident", 3, 2, 0, 1))
sketch17.addConstraint(Sketcher.Constraint("Tangent", 5, 2, 6, 1))
sketch17.addConstraint(Sketcher.Constraint("Tangent", 6, 2, 7, 1))
sketch17.addConstraint(Sketcher.Constraint("Coincident", 7, 2, 8, 1))
sketch17.addConstraint(Sketcher.Constraint("Coincident", 8, 2, 5, 1))
sketch17.addConstraint(Sketcher.Constraint("Tangent", 10, 2, 11, 1))
sketch17.addConstraint(Sketcher.Constraint("Tangent", 11, 2, 12, 1))
sketch17.addConstraint(Sketcher.Constraint("Coincident", 12, 2, 13, 1))
sketch17.addConstraint(Sketcher.Constraint("Coincident", 13, 2, 10, 1))
sketch17.addConstraint(Sketcher.Constraint("Tangent", 15, 2, 16, 1))
sketch17.addConstraint(Sketcher.Constraint("Tangent", 16, 2, 17, 1))
sketch17.addConstraint(Sketcher.Constraint("Coincident", 17, 2, 18, 1))
sketch17.addConstraint(Sketcher.Constraint("Coincident", 18, 2, 15, 1))
sketch17.addConstraint(Sketcher.Constraint("Vertical", 0))
sketch17.addConstraint(Sketcher.Constraint("Vertical", 2))
sketch17.addConstraint(Sketcher.Constraint("Horizontal", 5))
sketch17.addConstraint(Sketcher.Constraint("Horizontal", 7))
sketch17.addConstraint(Sketcher.Constraint("Vertical", 10))
sketch17.addConstraint(Sketcher.Constraint("Vertical", 12))
sketch17.addConstraint(Sketcher.Constraint("Horizontal", 15))
sketch17.addConstraint(Sketcher.Constraint("Horizontal", 17))
sketch17.addConstraint(Sketcher.Constraint("Coincident", 3, 3, -1, 1))
sketch17.addConstraint(Sketcher.Constraint("Coincident", 8, 3, -1, 1))
sketch17.addConstraint(Sketcher.Constraint("Coincident", 13, 3, -1, 1))
sketch17.addConstraint(Sketcher.Constraint("Coincident", 18, 3, -1, 1))
sketch17.addConstraint(Sketcher.Constraint("Coincident", 4, 3, 1, 3))
sketch17.addConstraint(Sketcher.Constraint("Coincident", 9, 3, 6, 3))
sketch17.addConstraint(Sketcher.Constraint("Coincident", 14, 3, 11, 3))
sketch17.addConstraint(Sketcher.Constraint("Coincident", 19, 3, 16, 3))
sketch17.addConstraint(Sketcher.Constraint("Equal", 1, 6))
sketch17.addConstraint(Sketcher.Constraint("Equal", 3, 8))
sketch17.addConstraint(Sketcher.Constraint("Equal", 4, 9))
sketch17.addConstraint(Sketcher.Constraint("Equal", 6, 11))
sketch17.addConstraint(Sketcher.Constraint("Equal", 8, 13))
sketch17.addConstraint(Sketcher.Constraint("Equal", 9, 14))
sketch17.addConstraint(Sketcher.Constraint("Equal", 11, 16))
sketch17.addConstraint(Sketcher.Constraint("Equal", 13, 18))
sketch17.addConstraint(Sketcher.Constraint("Equal", 14, 19))
sketch17.addConstraint(Sketcher.Constraint("Symmetric", 1, 3, 11, 3, -1, 1))
sketch17.addConstraint(Sketcher.Constraint("Symmetric", 6, 3, 16, 3, -1, 1))
sketch17.addConstraint(Sketcher.Constraint("PointOnObject", 1, 3, -2))
sketch17.addConstraint(Sketcher.Constraint("PointOnObject", 6, 3, -1))
sketch17.addConstraint(Sketcher.Constraint("Equal", 17, 0))
sketch17.addConstraint(Sketcher.Constraint("Radius", 1, 6.0))
sketch17.addConstraint(Sketcher.Constraint("Diameter", 4, 5.5))
sketch17.addConstraint(Sketcher.Constraint("Radius", 3, 37.9))
sketch17.addConstraint(Sketcher.Constraint("DistanceY", -1, 1, 1, 3, 33.0))
pad4 = body2.newObject("PartDesign::Pad", "Pad003")
pad4.Profile = sketch17
pad4.Length = 18.5

# Sketch on XZ plane
sketch18 = body2.newObject("Sketcher::SketchObject", "Sketch017")
sketch18.AttachmentSupport = (doc.getObject("XZ_Plane001"), [""])
sketch18.MapMode = "FlatFace"
sketch18.AttachmentOffset = App.Placement(Vector(0, 0, 20), App.Rotation())
add_polygon(sketch18, [(-43.899541, 46.549823), (-43.899541, -46.549823), (43.899541, -46.549823), (43.899541, 46.549823)])  # lines 0-3
sketch18.addConstraint(Sketcher.Constraint("Vertical", 0))
sketch18.addConstraint(Sketcher.Constraint("Horizontal", 1))
sketch18.addConstraint(Sketcher.Constraint("Vertical", 2))
sketch18.addConstraint(Sketcher.Constraint("Horizontal", 3))
sketch18.addConstraint(Sketcher.Constraint("Symmetric", 0, 2, 2, 2, -1, 1))
sketch18.addConstraint(Sketcher.Constraint("DistanceX", 1, 1, 1, 2, 87.799081))
sketch18.addConstraint(Sketcher.Constraint("DistanceY", 0, 2, 0, 1, 93.099645))
pocket14 = body2.newObject("PartDesign::Pocket", "Pocket013")
pocket14.Profile = sketch18
pocket14.Length = 10

# Sketch on XZ plane
sketch19 = body2.newObject("Sketcher::SketchObject", "Sketch018")
sketch19.AttachmentSupport = (doc.getObject("XZ_Plane001"), [""])
sketch19.MapMode = "FlatFace"
sketch19.AttachmentOffset = App.Placement(Vector(0, 0, 10), App.Rotation())
sketch19.addGeometry(Part.Circle(Vector(0, 33, 0), Vector(0, 0, 1), 2.75), False)
sketch19.addGeometry(Part.Circle(Vector(-33, 0, 0), Vector(0, 0, 1), 2.75), False)
sketch19.addGeometry(Part.Circle(Vector(0, -33, 0), Vector(0, 0, 1), 2.75), False)
sketch19.addGeometry(Part.Circle(Vector(33, 0, 0), Vector(0, 0, 1), 2.75), False)
sketch19.addConstraint(Sketcher.Constraint("Equal", 0, 1))
sketch19.addConstraint(Sketcher.Constraint("Equal", 1, 2))
sketch19.addConstraint(Sketcher.Constraint("Equal", 2, 3))
sketch19.addConstraint(Sketcher.Constraint("Symmetric", 0, 3, 2, 3, -1, 1))
sketch19.addConstraint(Sketcher.Constraint("Symmetric", 1, 3, 3, 3, -1, 1))
sketch19.addConstraint(Sketcher.Constraint("PointOnObject", 0, 3, -2))
sketch19.addConstraint(Sketcher.Constraint("PointOnObject", 1, 3, -1))
sketch19.addConstraint(Sketcher.Constraint("Diameter", 0, 5.5))
sketch19.addConstraint(Sketcher.Constraint("DistanceY", -1, 1, 0, 3, 33.0))
sketch19.addConstraint(Sketcher.Constraint("DistanceX", 1, 3, -1, 1, 33.0))
pocket15 = body2.newObject("PartDesign::Pocket", "Pocket014")
pocket15.Profile = sketch19
pocket15.Type = "ThroughAll"

# Sketch on XZ plane
sketch20 = body2.newObject("Sketcher::SketchObject", "Sketch019")
sketch20.AttachmentSupport = (doc.getObject("XZ_Plane001"), [""])
sketch20.MapMode = "FlatFace"
add_polygon(sketch20, [(37, 2.309401), (37, -2.309401), (33, -4.618802), (29, -2.309401), (29, 2.309401), (33, 4.618802)])  # lines 0-5
add_polygon(sketch20, [(4.618802, -33), (2.309401, -37), (-2.309401, -37), (-4.618802, -33), (-2.309401, -29), (2.309401, -29)])  # lines 6-11
add_polygon(sketch20, [(-2.309401, 37), (2.309401, 37), (4.618802, 33), (2.309401, 29), (-2.309401, 29), (-4.618802, 33)])  # lines 12-17
add_polygon(sketch20, [(-37, -2.309401), (-37, 2.309401), (-33, 4.618802), (-29, 2.309401), (-29, -2.309401), (-33, -4.618802)])  # lines 18-23
sketch20.addConstraint(Sketcher.Constraint("Vertical", 0))
sketch20.addConstraint(Sketcher.Constraint("Vertical", 3))
sketch20.addConstraint(Sketcher.Constraint("Horizontal", 7))
sketch20.addConstraint(Sketcher.Constraint("Horizontal", 10))
sketch20.addConstraint(Sketcher.Constraint("Horizontal", 12))
sketch20.addConstraint(Sketcher.Constraint("Horizontal", 15))
sketch20.addConstraint(Sketcher.Constraint("Vertical", 18))
sketch20.addConstraint(Sketcher.Constraint("Vertical", 21))
sketch20.addConstraint(Sketcher.Constraint("Symmetric", 7, 2, 12, 2, -1, 1))
sketch20.addConstraint(Sketcher.Constraint("Symmetric", 8, 2, 13, 2, -1, 1))
sketch20.addConstraint(Sketcher.Constraint("Symmetric", 9, 2, 14, 2, -1, 1))
sketch20.addConstraint(Sketcher.Constraint("Symmetric", 11, 2, 16, 2, -1, 1))
sketch20.addConstraint(Sketcher.Constraint("Symmetric", 0, 2, 18, 2, -1, 1))
sketch20.addConstraint(Sketcher.Constraint("Symmetric", 1, 2, 19, 2, -1, 1))
sketch20.addConstraint(Sketcher.Constraint("Symmetric", 2, 2, 20, 2, -1, 1))
sketch20.addConstraint(Sketcher.Constraint("Symmetric", 4, 2, 22, 2, -1, 1))
sketch20.addConstraint(Sketcher.Constraint("Symmetric", 8, 2, 11, 2, -2))
sketch20.addConstraint(Sketcher.Constraint("Symmetric", 4, 2, 19, 2, -2))
sketch20.addConstraint(Sketcher.Constraint("Parallel", 1, 4))
sketch20.addConstraint(Sketcher.Constraint("Parallel", 2, 5))
sketch20.addConstraint(Sketcher.Constraint("Perpendicular", 5, 6))
sketch20.addConstraint(Sketcher.Constraint("Perpendicular", 4, 8))
sketch20.addConstraint(Sketcher.Constraint("Parallel", 6, 9))
sketch20.addConstraint(Sketcher.Constraint("Parallel", 8, 11))
sketch20.addConstraint(Sketcher.Constraint("Parallel", 13, 16))
sketch20.addConstraint(Sketcher.Constraint("Parallel", 14, 17))
sketch20.addConstraint(Sketcher.Constraint("Parallel", 19, 22))
sketch20.addConstraint(Sketcher.Constraint("Parallel", 20, 23))
sketch20.addConstraint(Sketcher.Constraint("Horizontal", 0, 2, 2, 2))
sketch20.addConstraint(Sketcher.Constraint("Horizontal", 3, 2, 5, 2))
sketch20.addConstraint(Sketcher.Constraint("Vertical", 7, 2, 9, 2))
sketch20.addConstraint(Sketcher.Constraint("Equal", 15, 0))
sketch20.addConstraint(Sketcher.Constraint("Equal", 5, 6))
sketch20.addConstraint(Sketcher.Constraint("Angle", 1, Q("-150 deg")))
sketch20.addConstraint(Sketcher.Constraint("DistanceX", -1, 1, 0, 2, 37.0))
sketch20.addConstraint(Sketcher.Constraint("DistanceX", -1, 1, 1, 2, 33.0))
sketch20.addConstraint(Sketcher.Constraint("DistanceY", 6, 2, -1, 1, 37.0))
sketch20.addConstraint(Sketcher.Constraint("DistanceY", 0, 2, -1, 1, 2.309401))
pocket16 = body2.newObject("PartDesign::Pocket", "Pocket015")
pocket16.Profile = sketch20
pocket16.Length = 5
pocket16.Reversed = True

# Sketch on XZ plane
sketch21 = body2.newObject("Sketcher::SketchObject", "Sketch020")
sketch21.AttachmentSupport = (doc.getObject("XZ_Plane001"), [""])
sketch21.MapMode = "FlatFace"
sketch21.addGeometry(Part.Circle(Vector(-2, -22.5, 0), Vector(0, 0, 1), 1), False)
sketch21.addGeometry(Part.Circle(Vector(2, -22.5, 0), Vector(0, 0, 1), 1), False)
sketch21.addConstraint(Sketcher.Constraint("Equal", 0, 1))
sketch21.addConstraint(Sketcher.Constraint("Symmetric", 0, 3, 1, 3, -2))
sketch21.addConstraint(Sketcher.Constraint("Diameter", 0, 2.0))
sketch21.addConstraint(Sketcher.Constraint("DistanceX", 0, 3, -1, 1, 2.0))
sketch21.addConstraint(Sketcher.Constraint("DistanceY", 0, 3, -1, 1, 22.5))
pocket17 = body2.newObject("PartDesign::Pocket", "Pocket016")
pocket17.Profile = sketch21
pocket17.Length = 10
pocket17.Reversed = True

doc.recompute()
